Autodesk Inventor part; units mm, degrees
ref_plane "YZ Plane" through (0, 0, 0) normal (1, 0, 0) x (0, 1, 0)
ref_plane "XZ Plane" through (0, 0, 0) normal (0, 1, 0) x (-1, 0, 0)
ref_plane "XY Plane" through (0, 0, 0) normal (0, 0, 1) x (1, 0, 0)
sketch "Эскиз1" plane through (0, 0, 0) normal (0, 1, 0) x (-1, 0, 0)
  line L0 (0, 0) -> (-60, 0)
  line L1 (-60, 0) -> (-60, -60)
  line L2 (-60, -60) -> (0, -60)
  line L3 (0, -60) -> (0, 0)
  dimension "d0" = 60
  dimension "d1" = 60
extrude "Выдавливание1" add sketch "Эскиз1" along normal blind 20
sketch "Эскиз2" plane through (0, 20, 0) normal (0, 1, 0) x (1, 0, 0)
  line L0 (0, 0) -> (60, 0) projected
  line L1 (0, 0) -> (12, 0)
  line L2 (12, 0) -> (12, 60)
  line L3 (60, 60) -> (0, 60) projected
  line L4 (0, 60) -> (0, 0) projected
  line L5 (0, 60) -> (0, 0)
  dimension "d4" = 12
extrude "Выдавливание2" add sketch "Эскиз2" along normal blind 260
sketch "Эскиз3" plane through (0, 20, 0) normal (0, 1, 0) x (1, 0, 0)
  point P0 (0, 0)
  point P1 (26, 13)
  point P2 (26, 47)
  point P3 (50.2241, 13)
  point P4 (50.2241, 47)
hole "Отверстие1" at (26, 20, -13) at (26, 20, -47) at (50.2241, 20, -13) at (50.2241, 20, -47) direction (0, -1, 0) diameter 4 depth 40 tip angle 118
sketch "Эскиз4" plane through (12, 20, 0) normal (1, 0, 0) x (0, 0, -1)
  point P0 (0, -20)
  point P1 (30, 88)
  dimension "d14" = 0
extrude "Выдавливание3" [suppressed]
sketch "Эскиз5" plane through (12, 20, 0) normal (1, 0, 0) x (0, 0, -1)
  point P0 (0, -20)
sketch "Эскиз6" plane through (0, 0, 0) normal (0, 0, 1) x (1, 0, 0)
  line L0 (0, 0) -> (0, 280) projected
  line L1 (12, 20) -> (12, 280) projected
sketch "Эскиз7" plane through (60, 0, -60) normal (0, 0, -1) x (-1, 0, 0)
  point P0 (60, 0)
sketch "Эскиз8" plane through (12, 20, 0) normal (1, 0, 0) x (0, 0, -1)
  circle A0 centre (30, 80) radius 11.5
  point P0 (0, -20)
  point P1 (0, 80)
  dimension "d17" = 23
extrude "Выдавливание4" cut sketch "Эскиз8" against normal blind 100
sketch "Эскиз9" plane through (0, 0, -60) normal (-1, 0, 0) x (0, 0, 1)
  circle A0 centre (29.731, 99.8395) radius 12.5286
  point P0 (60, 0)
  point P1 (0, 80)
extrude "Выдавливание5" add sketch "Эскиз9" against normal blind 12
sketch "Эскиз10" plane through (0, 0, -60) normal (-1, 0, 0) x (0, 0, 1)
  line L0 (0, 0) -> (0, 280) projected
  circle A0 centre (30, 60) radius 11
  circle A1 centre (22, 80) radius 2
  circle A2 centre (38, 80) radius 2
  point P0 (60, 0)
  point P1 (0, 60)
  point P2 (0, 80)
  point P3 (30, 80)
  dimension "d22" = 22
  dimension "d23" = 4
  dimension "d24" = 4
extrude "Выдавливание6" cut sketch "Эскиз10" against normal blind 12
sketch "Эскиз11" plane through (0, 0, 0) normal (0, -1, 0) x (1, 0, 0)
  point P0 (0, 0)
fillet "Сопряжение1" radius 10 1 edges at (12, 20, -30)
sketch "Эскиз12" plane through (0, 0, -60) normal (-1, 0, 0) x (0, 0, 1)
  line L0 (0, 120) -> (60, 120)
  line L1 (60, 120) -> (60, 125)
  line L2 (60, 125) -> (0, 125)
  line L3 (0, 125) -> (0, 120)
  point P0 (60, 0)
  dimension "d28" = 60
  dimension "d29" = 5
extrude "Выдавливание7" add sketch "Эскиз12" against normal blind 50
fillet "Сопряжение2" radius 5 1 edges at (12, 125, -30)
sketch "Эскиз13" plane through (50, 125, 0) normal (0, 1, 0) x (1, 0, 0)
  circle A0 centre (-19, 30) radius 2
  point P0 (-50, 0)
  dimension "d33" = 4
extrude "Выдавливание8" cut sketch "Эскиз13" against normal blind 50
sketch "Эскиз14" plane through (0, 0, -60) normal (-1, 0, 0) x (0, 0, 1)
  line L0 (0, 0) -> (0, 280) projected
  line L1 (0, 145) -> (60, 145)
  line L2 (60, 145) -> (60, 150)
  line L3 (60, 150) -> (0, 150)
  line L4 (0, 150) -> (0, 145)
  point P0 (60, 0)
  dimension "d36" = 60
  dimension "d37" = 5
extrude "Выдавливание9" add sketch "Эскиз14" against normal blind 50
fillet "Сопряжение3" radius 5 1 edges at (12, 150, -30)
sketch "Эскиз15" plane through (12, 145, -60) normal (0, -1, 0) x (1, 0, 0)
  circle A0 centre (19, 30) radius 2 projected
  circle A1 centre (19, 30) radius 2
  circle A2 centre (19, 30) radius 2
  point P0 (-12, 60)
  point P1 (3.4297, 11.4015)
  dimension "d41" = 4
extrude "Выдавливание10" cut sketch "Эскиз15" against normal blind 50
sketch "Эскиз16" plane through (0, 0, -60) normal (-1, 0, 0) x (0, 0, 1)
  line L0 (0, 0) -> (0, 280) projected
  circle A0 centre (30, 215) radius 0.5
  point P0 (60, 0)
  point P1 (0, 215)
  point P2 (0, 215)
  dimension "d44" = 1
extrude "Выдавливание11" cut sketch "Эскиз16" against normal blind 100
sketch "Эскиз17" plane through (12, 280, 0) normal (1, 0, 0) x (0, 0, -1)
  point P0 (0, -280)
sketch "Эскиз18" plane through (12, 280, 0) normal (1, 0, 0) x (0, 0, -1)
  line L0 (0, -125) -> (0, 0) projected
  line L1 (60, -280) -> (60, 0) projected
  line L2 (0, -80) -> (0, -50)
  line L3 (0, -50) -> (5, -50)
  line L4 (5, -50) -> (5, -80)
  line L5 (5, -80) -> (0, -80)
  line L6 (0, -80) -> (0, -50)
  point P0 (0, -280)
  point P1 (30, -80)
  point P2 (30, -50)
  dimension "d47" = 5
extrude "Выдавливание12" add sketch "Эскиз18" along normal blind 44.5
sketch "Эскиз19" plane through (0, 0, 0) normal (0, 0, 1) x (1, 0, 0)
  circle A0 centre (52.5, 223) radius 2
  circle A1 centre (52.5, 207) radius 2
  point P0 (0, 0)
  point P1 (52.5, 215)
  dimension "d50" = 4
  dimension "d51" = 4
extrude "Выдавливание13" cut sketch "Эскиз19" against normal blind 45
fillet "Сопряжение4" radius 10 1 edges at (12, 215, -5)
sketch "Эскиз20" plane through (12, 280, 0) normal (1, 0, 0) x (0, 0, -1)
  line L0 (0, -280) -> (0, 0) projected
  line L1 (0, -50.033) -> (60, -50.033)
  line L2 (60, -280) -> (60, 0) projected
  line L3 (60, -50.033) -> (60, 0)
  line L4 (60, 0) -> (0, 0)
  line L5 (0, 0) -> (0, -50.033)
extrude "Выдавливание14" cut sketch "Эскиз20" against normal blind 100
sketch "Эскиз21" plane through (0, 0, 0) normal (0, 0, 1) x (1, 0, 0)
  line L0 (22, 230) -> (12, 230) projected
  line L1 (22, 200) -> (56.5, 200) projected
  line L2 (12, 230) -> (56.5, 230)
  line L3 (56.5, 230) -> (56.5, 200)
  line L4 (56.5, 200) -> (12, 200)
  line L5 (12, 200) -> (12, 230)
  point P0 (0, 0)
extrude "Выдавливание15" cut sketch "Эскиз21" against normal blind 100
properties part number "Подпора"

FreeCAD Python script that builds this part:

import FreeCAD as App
import Part
import Sketcher
from FreeCAD import Vector
Q = App.Units.Quantity


def edges_at(feature, points):
    """Names of the edges that pass closest to the given points."""
    edges = feature.Shape.Edges
    near = lambda p: min(range(len(edges)), key=lambda i: edges[i].distToShape(Part.Vertex(*p))[0])
    return sorted({f"Edge{near(p) + 1}" for p in points})

doc = App.newDocument("Part")
body = doc.addObject("PartDesign::Body", "Body")

# Sketch on XZ plane
sketch1 = body.newObject("Sketcher::SketchObject", "Sketch")
sketch1.AttachmentSupport = (doc.getObject("XZ_Plane"), [""])
sketch1.MapMode = "FlatFace"
sketch1.addGeometry([
    Part.LineSegment(Vector(0, -60, 0), Vector(0, 0, 0)),
    Part.LineSegment(Vector(0, 0, 0), Vector(60, 0, 0)),
    Part.LineSegment(Vector(60, 0, 0), Vector(60, -60, 0)),
    Part.LineSegment(Vector(60, -60, 0), Vector(0, -60, 0)),
], False)
sketch1.addConstraint([
    Sketcher.Constraint("Coincident", 0, 2, 1, 1),
    Sketcher.Constraint("Coincident", 1, 2, 2, 1),
    Sketcher.Constraint("Coincident", 2, 2, 3, 1),
    Sketcher.Constraint("Coincident", 3, 2, 0, 1),
    Sketcher.Constraint("Vertical", 0),
    Sketcher.Constraint("Horizontal", 1),
    Sketcher.Constraint("Vertical", 2),
    Sketcher.Constraint("Horizontal", 3),
    Sketcher.Constraint("Coincident", 0, 2, -1, 1),
    Sketcher.Constraint("Equal", 3, 0),
    Sketcher.Constraint("DistanceX", 1, 1, 1, 2, Q("60 mm")),
])
pad1 = body.newObject("PartDesign::Pad", "Pad")
pad1.Profile = sketch1
pad1.Length = 20
pad1.Reversed = True

# Sketch on XZ plane
sketch2 = body.newObject("Sketcher::SketchObject", "Sketch001")
sketch2.AttachmentSupport = (doc.getObject("XZ_Plane"), [""])
sketch2.MapMode = "FlatFace"
sketch2.AttachmentOffset = App.Placement(Vector(0, 0, -20), App.Rotation())
sketch2.addGeometry([
    Part.LineSegment(Vector(0, -60, 0), Vector(0, 0, 0)),
    Part.LineSegment(Vector(0, 0, 0), Vector(12, 0, 0)),
    Part.LineSegment(Vector(12, 0, 0), Vector(12, -60, 0)),
    Part.LineSegment(Vector(12, -60, 0), Vector(0, -60, 0)),
], False)
sketch2.addConstraint([
    Sketcher.Constraint("Coincident", 0, 2, 1, 1),
    Sketcher.Constraint("Coincident", 1, 2, 2, 1),
    Sketcher.Constraint("Coincident", 2, 2, 3, 1),
    Sketcher.Constraint("Coincident", 3, 2, 0, 1),
    Sketcher.Constraint("Vertical", 0),
    Sketcher.Constraint("Horizontal", 1),
    Sketcher.Constraint("Vertical", 2),
    Sketcher.Constraint("Horizontal", 3),
    Sketcher.Constraint("Coincident", 0, 2, -1, 1),
    Sketcher.Constraint("DistanceX", 1, 1, 1, 2, Q("12 mm")),
    Sketcher.Constraint("DistanceY", 0, 1, 0, 2, Q("60 mm")),
])
pad2 = body.newObject("PartDesign::Pad", "Pad001")
pad2.Profile = sketch2
pad2.Length = 260
pad2.Reversed = True

# Sketch on XZ plane
sketch3 = body.newObject("Sketcher::SketchObject", "Sketch002")
sketch3.AttachmentSupport = (doc.getObject("XZ_Plane"), [""])
sketch3.MapMode = "FlatFace"
sketch3.AttachmentOffset = App.Placement(Vector(0, 0, -20), App.Rotation())
sketch3.addGeometry([
    Part.Circle(Vector(26, -13, 0), Vector(0, 0, 1), 2),
    Part.Circle(Vector(26, -47, 0), Vector(0, 0, 1), 2),
    Part.Circle(Vector(50.2, -13, 0), Vector(0, 0, 1), 2),
    Part.Circle(Vector(50.2, -47, 0), Vector(0, 0, 1), 2),
], False)
sketch3.addConstraint([
    Sketcher.Constraint("Equal", 0, 1),
    Sketcher.Constraint("Equal", 1, 2),
    Sketcher.Constraint("Equal", 2, 3),
    Sketcher.Constraint("Horizontal", 0, 3, 2, 3),
    Sketcher.Constraint("Horizontal", 1, 3, 3, 3),
    Sketcher.Constraint("Vertical", 0, 3, 1, 3),
    Sketcher.Constraint("Vertical", 2, 3, 3, 3),
    Sketcher.Constraint("Diameter", 0, Q("4 mm")),
    Sketcher.Constraint("DistanceX", -1, 1, 0, 3, Q("26 mm")),
    Sketcher.Constraint("DistanceY", 0, 3, -1, 1, Q("13 mm")),
    Sketcher.Constraint("DistanceY", 1, 3, -1, 1, Q("47 mm")),
    Sketcher.Constraint("DistanceX", -1, 1, 2, 3, Q("50.224 mm")),
])
doc.recompute()
hole = body.newObject("PartDesign::Hole", "Hole")
hole.Profile = sketch3
hole.ThreadType = "None"
hole.Diameter = 4
hole.DepthType = "Dimension"
hole.Depth = 40
hole.DrillPoint = "Angled"
hole.DrillPointAngle = 118
hole.Reversed = True

# Sketch on YZ plane
sketch4 = body.newObject("Sketcher::SketchObject", "Sketch003")
sketch4.AttachmentSupport = (doc.getObject("YZ_Plane"), [""])
sketch4.MapMode = "FlatFace"
sketch4.AttachmentOffset = App.Placement(Vector(0, 0, 12), App.Rotation())
sketch4.addGeometry(Part.Circle(Vector(100, -30, 0), Vector(0, 0, 1), 12), False)
sketch4.addConstraint([
    Sketcher.Constraint("Diameter", 0, Q("23 mm")),
    Sketcher.Constraint("DistanceX", -1, 1, 0, 3, Q("100 mm")),
    Sketcher.Constraint("DistanceY", 0, 3, -1, 1, Q("30 mm")),
])
pocket1 = body.newObject("PartDesign::Pocket", "Pocket")
pocket1.Profile = sketch4
pocket1.Length = 100

# Sketch on YZ plane
sketch5 = body.newObject("Sketcher::SketchObject", "Sketch004")
sketch5.AttachmentSupport = (doc.getObject("YZ_Plane"), [""])
sketch5.MapMode = "FlatFace"
sketch5.addGeometry(Part.Circle(Vector(100, -30, 0), Vector(0, 0, 1), 13), False)
sketch5.addConstraint([
    Sketcher.Constraint("Diameter", 0, Q("25.0572 mm")),
    Sketcher.Constraint("DistanceY", 0, 3, -1, 1, Q("30.269 mm")),
    Sketcher.Constraint("DistanceX", -1, 1, 0, 3, Q("99.8395 mm")),
])
pad3 = body.newObject("PartDesign::Pad", "Pad002")
pad3.Profile = sketch5
pad3.Length = 12

# Sketch on YZ plane
sketch6 = body.newObject("Sketcher::SketchObject", "Sketch005")
sketch6.AttachmentSupport = (doc.getObject("YZ_Plane"), [""])
sketch6.MapMode = "FlatFace"
sketch6.addGeometry([
    Part.Circle(Vector(60, -30, 0), Vector(0, 0, 1), 11),
    Part.Circle(Vector(80, -38, 0), Vector(0, 0, 1), 2),
    Part.Circle(Vector(80, -22, 0), Vector(0, 0, 1), 2),
], False)
sketch6.addConstraint([
    Sketcher.Constraint("Equal", 1, 2),
    Sketcher.Constraint("Vertical", 1, 3, 2, 3),
    Sketcher.Constraint("Diameter", 0, Q("22 mm")),
    Sketcher.Constraint("Diameter", 1, Q("4 mm")),
    Sketcher.Constraint("DistanceY", 2, 3, -1, 1, Q("22 mm")),
    Sketcher.Constraint("DistanceX", -1, 1, 0, 3, Q("60 mm")),
    Sketcher.Constraint("DistanceY", 0, 3, -1, 1, Q("30 mm")),
    Sketcher.Constraint("DistanceX", -1, 1, 1, 3, Q("80 mm")),
    Sketcher.Constraint("DistanceY", 1, 3, -1, 1, Q("38 mm")),
])
pocket2 = body.newObject("PartDesign::Pocket", "Pocket001")
pocket2.Profile = sketch6
pocket2.Length = 12
pocket2.Reversed = True
doc.recompute()

fillet = body.newObject("PartDesign::Fillet", "Fillet")
fillet.Base = (pocket2, edges_at(pocket2, [(12, 20, -30)]))
fillet.Radius = 10

# Sketch on YZ plane
sketch7 = body.newObject("Sketcher::SketchObject", "Sketch006")
sketch7.AttachmentSupport = (doc.getObject("YZ_Plane"), [""])
sketch7.MapMode = "FlatFace"
sketch7.addGeometry([
    Part.LineSegment(Vector(125, -60, 0), Vector(120, -60, 0)),
    Part.LineSegment(Vector(120, -60, 0), Vector(120, 0, 0)),
    Part.LineSegment(Vector(120, 0, 0), Vector(125, 0, 0)),
    Part.LineSegment(Vector(125, 0, 0), Vector(125, -60, 0)),
], False)
sketch7.addConstraint([
    Sketcher.Constraint("Coincident", 0, 2, 1, 1),
    Sketcher.Constraint("Coincident", 1, 2, 2, 1),
    Sketcher.Constraint("Coincident", 2, 2, 3, 1),
    Sketcher.Constraint("Coincident", 3, 2, 0, 1),
    Sketcher.Constraint("Horizontal", 0),
    Sketcher.Constraint("Vertical", 1),
    Sketcher.Constraint("Horizontal", 2),
    Sketcher.Constraint("Vertical", 3),
    Sketcher.Constraint("PointOnObject", 1, 2, -1),
    Sketcher.Constraint("DistanceX", 0, 2, 0, 1, Q("5 mm")),
    Sketcher.Constraint("DistanceY", 1, 1, 1, 2, Q("60 mm")),
    Sketcher.Constraint("DistanceX", -1, 1, 0, 2, Q("120 mm")),
])
pad4 = body.newObject("PartDesign::Pad", "Pad003")
pad4.Profile = sketch7
pad4.Length = 50
doc.recompute()

fillet2 = body.newObject("PartDesign::Fillet", "Fillet001")
fillet2.Base = (pad4, edges_at(pad4, [(12, 125, -30)]))
fillet2.Radius = 5

# Sketch on XZ plane
sketch8 = body.newObject("Sketcher::SketchObject", "Sketch007")
sketch8.AttachmentSupport = (doc.getObject("XZ_Plane"), [""])
sketch8.MapMode = "FlatFace"
sketch8.AttachmentOffset = App.Placement(Vector(0, 0, -125), App.Rotation())
sketch8.addGeometry(Part.Circle(Vector(31, -30, 0), Vector(0, 0, 1), 2), False)
sketch8.addConstraint([
    Sketcher.Constraint("Diameter", 0, Q("4 mm")),
    Sketcher.Constraint("DistanceX", -1, 1, 0, 3, Q("31 mm")),
    Sketcher.Constraint("DistanceY", 0, 3, -1, 1, Q("30 mm")),
])
pocket3 = body.newObject("PartDesign::Pocket", "Pocket002")
pocket3.Profile = sketch8
pocket3.Length = 50
pocket3.Reversed = True

# Sketch on YZ plane
sketch9 = body.newObject("Sketcher::SketchObject", "Sketch008")
sketch9.AttachmentSupport = (doc.getObject("YZ_Plane"), [""])
sketch9.MapMode = "FlatFace"
sketch9.addGeometry([
    Part.LineSegment(Vector(150, -60, 0), Vector(145, -60, 0)),
    Part.LineSegment(Vector(145, -60, 0), Vector(145, 0, 0)),
    Part.LineSegment(Vector(145, 0, 0), Vector(150, 0, 0)),
    Part.LineSegment(Vector(150, 0, 0), Vector(150, -60, 0)),
], False)
sketch9.addConstraint([
    Sketcher.Constraint("Coincident", 0, 2, 1, 1),
    Sketcher.Constraint("Coincident", 1, 2, 2, 1),
    Sketcher.Constraint("Coincident", 2, 2, 3, 1),
    Sketcher.Constraint("Coincident", 3, 2, 0, 1),
    Sketcher.Constraint("Horizontal", 0),
    Sketcher.Constraint("Vertical", 1),
    Sketcher.Constraint("Horizontal", 2),
    Sketcher.Constraint("Vertical", 3),
    Sketcher.Constraint("PointOnObject", 1, 2, -1),
    Sketcher.Constraint("DistanceX", 0, 2, 0, 1, Q("5 mm")),
    Sketcher.Constraint("DistanceY", 1, 1, 1, 2, Q("60 mm")),
    Sketcher.Constraint("DistanceX", -1, 1, 0, 2, Q("145 mm")),
])
pad5 = body.newObject("PartDesign::Pad", "Pad004")
pad5.Profile = sketch9
pad5.Length = 50
doc.recompute()

fillet3 = body.newObject("PartDesign::Fillet", "Fillet002")
fillet3.Base = (pad5, edges_at(pad5, [(12, 150, -30)]))
fillet3.Radius = 5

# Sketch on XZ plane
sketch10 = body.newObject("Sketcher::SketchObject", "Sketch009")
sketch10.AttachmentSupport = (doc.getObject("XZ_Plane"), [""])
sketch10.MapMode = "FlatFace"
sketch10.AttachmentOffset = App.Placement(Vector(0, 0, -145), App.Rotation())
sketch10.addGeometry(Part.Circle(Vector(31, -30, 0), Vector(0, 0, 1), 2), False)
sketch10.addConstraint([
    Sketcher.Constraint("Diameter", 0, Q("4 mm")),
    Sketcher.Constraint("DistanceX", -1, 1, 0, 3, Q("31 mm")),
    Sketcher.Constraint("DistanceY", 0, 3, -1, 1, Q("30 mm")),
])
pocket4 = body.newObject("PartDesign::Pocket", "Pocket003")
pocket4.Profile = sketch10
pocket4.Length = 50

# Sketch on YZ plane
sketch11 = body.newObject("Sketcher::SketchObject", "Sketch010")
sketch11.AttachmentSupport = (doc.getObject("YZ_Plane"), [""])
sketch11.MapMode = "FlatFace"
sketch11.addGeometry(Part.Circle(Vector(215, -30, 0), Vector(0, 0, 1), 0.5), False)
sketch11.addConstraint([
    Sketcher.Constraint("Diameter", 0, Q("1 mm")),
    Sketcher.Constraint("DistanceX", -1, 1, 0, 3, Q("215 mm")),
    Sketcher.Constraint("DistanceY", 0, 3, -1, 1, Q("30 mm")),
])
pocket5 = body.newObject("PartDesign::Pocket", "Pocket004")
pocket5.Profile = sketch11
pocket5.Length = 100
pocket5.Reversed = True

# Sketch on YZ plane
sketch12 = body.newObject("Sketcher::SketchObject", "Sketch011")
sketch12.AttachmentSupport = (doc.getObject("YZ_Plane"), [""])
sketch12.MapMode = "FlatFace"
sketch12.AttachmentOffset = App.Placement(Vector(0, 0, 12), App.Rotation())
sketch12.addGeometry([
    Part.LineSegment(Vector(230, 0, 0), Vector(200, 0, 0)),
    Part.LineSegment(Vector(200, 0, 0), Vector(200, -5, 0)),
    Part.LineSegment(Vector(200, -5, 0), Vector(230, -5, 0)),
    Part.LineSegment(Vector(230, -5, 0), Vector(230, 0, 0)),
], False)
sketch12.addConstraint([
    Sketcher.Constraint("Coincident", 0, 2, 1, 1),
    Sketcher.Constraint("Coincident", 1, 2, 2, 1),
    Sketcher.Constraint("Coincident", 2, 2, 3, 1),
    Sketcher.Constraint("Coincident", 3, 2, 0, 1),
    Sketcher.Constraint("Horizontal", 0),
    Sketcher.Constraint("Vertical", 1),
    Sketcher.Constraint("Horizontal", 2),
    Sketcher.Constraint("Vertical", 3),
    Sketcher.Constraint("PointOnObject", 0, 2, -1),
    Sketcher.Constraint("DistanceY", 1, 2, 1, 1, Q("5 mm")),
    Sketcher.Constraint("DistanceX", 0, 2, 0, 1, Q("30 mm")),
    Sketcher.Constraint("DistanceX", -1, 1, 0, 2, Q("200 mm")),
])
pad6 = body.newObject("PartDesign::Pad", "Pad005")
pad6.Profile = sketch12
pad6.Length = 44.5

# Sketch on XY plane
sketch13 = body.newObject("Sketcher::SketchObject", "Sketch012")
sketch13.AttachmentSupport = (doc.getObject("XY_Plane"), [""])
sketch13.MapMode = "FlatFace"
sketch13.addGeometry([
    Part.Circle(Vector(52.5, 223, 0), Vector(0, 0, 1), 2),
    Part.Circle(Vector(52.5, 207, 0), Vector(0, 0, 1), 2),
], False)
sketch13.addConstraint([
    Sketcher.Constraint("Equal", 0, 1),
    Sketcher.Constraint("Vertical", 0, 3, 1, 3),
    Sketcher.Constraint("Diameter", 0, Q("4 mm")),
    Sketcher.Constraint("DistanceY", -1, 1, 0, 3, Q("223 mm")),
    Sketcher.Constraint("DistanceY", -1, 1, 1, 3, Q("207 mm")),
    Sketcher.Constraint("DistanceX", -1, 1, 0, 3, Q("52.5 mm")),
])
pocket6 = body.newObject("PartDesign::Pocket", "Pocket005")
pocket6.Profile = sketch13
pocket6.Length = 45
doc.recompute()

fillet4 = body.newObject("PartDesign::Fillet", "Fillet003")
fillet4.Base = (pocket6, edges_at(pocket6, [(12, 215, -5)]))
fillet4.Radius = 10

# Sketch on YZ plane
sketch14 = body.newObject("Sketcher::SketchObject", "Sketch013")
sketch14.AttachmentSupport = (doc.getObject("YZ_Plane"), [""])
sketch14.MapMode = "FlatFace"
sketch14.AttachmentOffset = App.Placement(Vector(0, 0, 12), App.Rotation())
sketch14.addGeometry([
    Part.LineSegment(Vector(280, 0, 0), Vector(230, 0, 0)),
    Part.LineSegment(Vector(230, 0, 0), Vector(230, -60, 0)),
    Part.LineSegment(Vector(230, -60, 0), Vector(280, -60, 0)),
    Part.LineSegment(Vector(280, -60, 0), Vector(280, 0, 0)),
], False)
sketch14.addConstraint([
    Sketcher.Constraint("Coincident", 0, 2, 1, 1),
    Sketcher.Constraint("Coincident", 1, 2, 2, 1),
    Sketcher.Constraint("Coincident", 2, 2, 3, 1),
    Sketcher.Constraint("Coincident", 3, 2, 0, 1),
    Sketcher.Constraint("Horizontal", 0),
    Sketcher.Constraint("Vertical", 1),
    Sketcher.Constraint("Horizontal", 2),
    Sketcher.Constraint("Vertical", 3),
    Sketcher.Constraint("PointOnObject", 0, 2, -1),
    Sketcher.Constraint("DistanceY", 1, 2, 1, 1, Q("60 mm")),
    Sketcher.Constraint("DistanceX", -1, 1, 2, 2, Q("280 mm")),
    Sketcher.Constraint("DistanceX", 0, 2, 0, 1, Q("50.033 mm")),
])
pocket7 = body.newObject("PartDesign::Pocket", "Pocket006")
pocket7.Profile = sketch14
pocket7.Length = 100

# Sketch on XY plane
sketch15 = body.newObject("Sketcher::SketchObject", "Sketch014")
sketch15.AttachmentSupport = (doc.getObject("XY_Plane"), [""])
sketch15.MapMode = "FlatFace"
sketch15.addGeometry([
    Part.LineSegment(Vector(56, 230, 0), Vector(12, 230, 0)),
    Part.LineSegment(Vector(12, 230, 0), Vector(12, 200, 0)),
    Part.LineSegment(Vector(12, 200, 0), Vector(56, 200, 0)),
    Part.LineSegment(Vector(56, 200, 0), Vector(56, 230, 0)),
], False)
sketch15.addConstraint([
    Sketcher.Constraint("Coincident", 0, 2, 1, 1),
    Sketcher.Constraint("Coincident", 1, 2, 2, 1),
    Sketcher.Constraint("Coincident", 2, 2, 3, 1),
    Sketcher.Constraint("Coincident", 3, 2, 0, 1),
    Sketcher.Constraint("Horizontal", 0),
    Sketcher.Constraint("Vertical", 1),
    Sketcher.Constraint("Horizontal", 2),
    Sketcher.Constraint("Vertical", 3),
    Sketcher.Constraint("DistanceY", 1, 2, 1, 1, Q("30 mm")),
    Sketcher.Constraint("DistanceX", 0, 2, 0, 1, Q("44.5 mm")),
    Sketcher.Constraint("DistanceX", -1, 1, 0, 2, Q("12 mm")),
    Sketcher.Constraint("DistanceY", -1, 1, 0, 2, Q("230 mm")),
])
pocket8 = body.newObject("PartDesign::Pocket", "Pocket007")
pocket8.Profile = sketch15
pocket8.Length = 100

doc.recompute()
